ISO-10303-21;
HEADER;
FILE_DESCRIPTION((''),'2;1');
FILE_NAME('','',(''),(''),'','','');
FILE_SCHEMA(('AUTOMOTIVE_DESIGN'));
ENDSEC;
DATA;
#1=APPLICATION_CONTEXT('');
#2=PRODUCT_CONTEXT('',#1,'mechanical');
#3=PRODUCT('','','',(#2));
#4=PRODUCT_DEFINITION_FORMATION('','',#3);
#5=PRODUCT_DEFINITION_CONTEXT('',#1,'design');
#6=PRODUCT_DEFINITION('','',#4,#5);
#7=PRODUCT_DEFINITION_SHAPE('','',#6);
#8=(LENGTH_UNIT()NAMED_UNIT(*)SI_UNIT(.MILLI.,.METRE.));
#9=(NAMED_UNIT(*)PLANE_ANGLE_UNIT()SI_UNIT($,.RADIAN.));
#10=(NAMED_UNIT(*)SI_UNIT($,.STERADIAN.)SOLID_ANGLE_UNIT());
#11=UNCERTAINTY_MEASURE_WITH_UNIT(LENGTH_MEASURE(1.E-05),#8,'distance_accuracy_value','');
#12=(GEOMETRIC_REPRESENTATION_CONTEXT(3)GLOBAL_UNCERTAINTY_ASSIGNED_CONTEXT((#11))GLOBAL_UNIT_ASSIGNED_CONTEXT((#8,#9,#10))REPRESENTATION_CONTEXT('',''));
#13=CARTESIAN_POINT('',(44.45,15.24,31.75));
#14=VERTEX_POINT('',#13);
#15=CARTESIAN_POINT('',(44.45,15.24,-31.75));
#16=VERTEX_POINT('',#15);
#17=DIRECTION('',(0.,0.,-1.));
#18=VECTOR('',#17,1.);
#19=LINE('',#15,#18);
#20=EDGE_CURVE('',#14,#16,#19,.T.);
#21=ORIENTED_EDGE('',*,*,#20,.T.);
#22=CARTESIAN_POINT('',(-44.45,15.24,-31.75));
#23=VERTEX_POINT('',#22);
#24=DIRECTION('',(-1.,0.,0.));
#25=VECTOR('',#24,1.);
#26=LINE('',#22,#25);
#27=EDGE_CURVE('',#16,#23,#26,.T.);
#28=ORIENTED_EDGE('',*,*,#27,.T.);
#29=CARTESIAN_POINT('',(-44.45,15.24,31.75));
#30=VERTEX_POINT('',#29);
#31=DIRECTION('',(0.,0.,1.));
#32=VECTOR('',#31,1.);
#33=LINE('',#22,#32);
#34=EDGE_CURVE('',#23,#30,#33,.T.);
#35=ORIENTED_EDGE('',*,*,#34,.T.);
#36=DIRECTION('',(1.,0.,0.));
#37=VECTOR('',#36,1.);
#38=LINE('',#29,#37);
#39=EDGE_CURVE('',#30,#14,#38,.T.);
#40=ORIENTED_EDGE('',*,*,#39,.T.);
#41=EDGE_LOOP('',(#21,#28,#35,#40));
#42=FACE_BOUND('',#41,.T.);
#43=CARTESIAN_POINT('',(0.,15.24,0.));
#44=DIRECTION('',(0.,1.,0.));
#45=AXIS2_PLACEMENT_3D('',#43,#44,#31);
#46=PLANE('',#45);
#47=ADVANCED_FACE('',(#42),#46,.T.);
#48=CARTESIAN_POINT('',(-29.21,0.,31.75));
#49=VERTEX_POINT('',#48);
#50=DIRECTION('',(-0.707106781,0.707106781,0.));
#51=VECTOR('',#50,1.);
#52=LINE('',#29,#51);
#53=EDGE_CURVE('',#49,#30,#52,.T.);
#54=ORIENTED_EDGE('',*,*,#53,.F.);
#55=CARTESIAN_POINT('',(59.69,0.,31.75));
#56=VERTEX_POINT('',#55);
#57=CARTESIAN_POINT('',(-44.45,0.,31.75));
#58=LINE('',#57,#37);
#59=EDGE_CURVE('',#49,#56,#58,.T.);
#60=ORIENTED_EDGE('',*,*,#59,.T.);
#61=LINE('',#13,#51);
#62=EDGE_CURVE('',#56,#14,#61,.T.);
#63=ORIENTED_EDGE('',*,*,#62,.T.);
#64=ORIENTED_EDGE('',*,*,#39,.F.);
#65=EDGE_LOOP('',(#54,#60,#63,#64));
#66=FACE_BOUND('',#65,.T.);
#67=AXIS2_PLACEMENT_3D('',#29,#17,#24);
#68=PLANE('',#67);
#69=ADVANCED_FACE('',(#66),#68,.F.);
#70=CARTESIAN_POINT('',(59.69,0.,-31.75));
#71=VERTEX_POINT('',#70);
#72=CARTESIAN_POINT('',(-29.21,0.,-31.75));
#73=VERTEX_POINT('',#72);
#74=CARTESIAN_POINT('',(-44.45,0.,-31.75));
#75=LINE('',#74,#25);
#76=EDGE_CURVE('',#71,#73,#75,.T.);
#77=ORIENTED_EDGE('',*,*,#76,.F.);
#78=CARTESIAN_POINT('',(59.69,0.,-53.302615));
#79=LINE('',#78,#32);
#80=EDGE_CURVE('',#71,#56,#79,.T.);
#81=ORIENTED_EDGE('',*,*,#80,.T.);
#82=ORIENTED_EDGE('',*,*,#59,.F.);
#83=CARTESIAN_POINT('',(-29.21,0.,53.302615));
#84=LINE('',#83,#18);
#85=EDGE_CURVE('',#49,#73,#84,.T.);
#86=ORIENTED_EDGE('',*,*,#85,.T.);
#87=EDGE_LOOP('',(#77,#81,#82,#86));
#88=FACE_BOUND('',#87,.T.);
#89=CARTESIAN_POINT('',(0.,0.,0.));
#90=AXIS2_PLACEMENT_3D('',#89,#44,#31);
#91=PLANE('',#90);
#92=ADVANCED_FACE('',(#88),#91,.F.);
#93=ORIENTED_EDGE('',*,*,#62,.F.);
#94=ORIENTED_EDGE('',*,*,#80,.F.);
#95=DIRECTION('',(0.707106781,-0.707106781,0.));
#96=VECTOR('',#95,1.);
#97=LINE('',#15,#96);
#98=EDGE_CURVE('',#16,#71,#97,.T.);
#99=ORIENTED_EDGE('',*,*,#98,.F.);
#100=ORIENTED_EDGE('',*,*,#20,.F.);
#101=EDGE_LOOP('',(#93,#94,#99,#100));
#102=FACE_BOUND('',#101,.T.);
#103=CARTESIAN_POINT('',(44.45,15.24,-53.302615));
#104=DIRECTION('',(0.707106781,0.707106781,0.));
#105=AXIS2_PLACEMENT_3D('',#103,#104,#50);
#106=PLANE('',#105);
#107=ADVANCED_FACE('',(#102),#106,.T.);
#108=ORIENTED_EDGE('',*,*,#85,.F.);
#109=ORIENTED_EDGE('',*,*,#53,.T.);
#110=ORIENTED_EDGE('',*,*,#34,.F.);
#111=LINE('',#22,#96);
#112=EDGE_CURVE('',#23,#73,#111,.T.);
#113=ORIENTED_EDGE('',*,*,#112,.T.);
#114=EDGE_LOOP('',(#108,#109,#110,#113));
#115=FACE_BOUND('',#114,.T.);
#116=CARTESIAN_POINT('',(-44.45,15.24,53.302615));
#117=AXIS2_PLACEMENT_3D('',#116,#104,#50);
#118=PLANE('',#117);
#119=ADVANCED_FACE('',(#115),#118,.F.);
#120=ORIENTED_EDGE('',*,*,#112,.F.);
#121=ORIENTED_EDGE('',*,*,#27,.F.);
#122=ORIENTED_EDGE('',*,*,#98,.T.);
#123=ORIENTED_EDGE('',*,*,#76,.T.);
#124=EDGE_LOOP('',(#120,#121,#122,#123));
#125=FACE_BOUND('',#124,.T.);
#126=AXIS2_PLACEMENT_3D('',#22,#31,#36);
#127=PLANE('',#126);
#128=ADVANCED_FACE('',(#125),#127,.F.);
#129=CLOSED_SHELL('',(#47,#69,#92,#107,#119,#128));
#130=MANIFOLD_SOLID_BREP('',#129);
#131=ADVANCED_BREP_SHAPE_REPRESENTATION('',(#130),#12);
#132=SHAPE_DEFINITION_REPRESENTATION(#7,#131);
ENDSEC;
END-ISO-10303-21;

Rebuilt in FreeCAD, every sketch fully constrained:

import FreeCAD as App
import Part
import Sketcher

V = App.Vector
Q = App.Units.Quantity

doc = App.newDocument("Part")
body = doc.addObject("PartDesign::Body", "Body")

sketch1 = body.newObject("Sketcher::SketchObject", "Sketch")
sketch1.AttachmentSupport = (doc.getObject("XZ_Plane"), [""])
sketch1.MapMode = "FlatFace"
sketch1.addGeometry([
    Part.LineSegment(V(-44.45, -31.75, 0), V(-44.45, 31.75, 0)),
    Part.LineSegment(V(-44.45, 31.75, 0), V(44.45, 31.75, 0)),
    Part.LineSegment(V(44.45, 31.75, 0), V(44.45, -31.75, 0)),
    Part.LineSegment(V(44.45, -31.75, 0), V(-44.45, -31.75, 0)),
], False)
sketch1.addConstraint([
    Sketcher.Constraint("Coincident", 0, 2, 1, 1),
    Sketcher.Constraint("Coincident", 1, 2, 2, 1),
    Sketcher.Constraint("Coincident", 2, 2, 3, 1),
    Sketcher.Constraint("Coincident", 3, 2, 0, 1),
    Sketcher.Constraint("Vertical", 0),
    Sketcher.Constraint("Horizontal", 1),
    Sketcher.Constraint("Vertical", 2),
    Sketcher.Constraint("Horizontal", 3),
    Sketcher.Constraint("Symmetric", 0, 2, 2, 2, -1, 1),
    Sketcher.Constraint("DistanceX", 1, 1, 1, 2, Q("3.5 in")),
    Sketcher.Constraint("DistanceY", 0, 1, 0, 2, Q("2.5 in")),
])
pad1 = body.newObject("PartDesign::Pad", "Pad")
pad1.Profile = sketch1
pad1.Length = Q("0.6 in")
pad1.Reversed = True

sketch2 = body.newObject("Sketcher::SketchObject", "Sketch001")
sketch2.AttachmentSupport = (doc.getObject("XY_Plane"), [""])
sketch2.MapMode = "FlatFace"
sketch2.AttachmentOffset = App.Placement(V(0, 0, 1.25 * 25.4), App.Rotation())
sketch2.addGeometry([
    Part.LineSegment(V(59.69, 0, 0), V(44.45, 15.24, 0)),
    Part.LineSegment(V(44.45, 15.24, 0), V(44.45, 0, 0)),
    Part.LineSegment(V(44.45, 0, 0), V(59.69, 0, 0)),
], False)
sketch2.addConstraint([
    Sketcher.Constraint("Coincident", 0, 2, 1, 1),
    Sketcher.Constraint("Coincident", 1, 2, 2, 1),
    Sketcher.Constraint("Coincident", 2, 2, 0, 1),
    Sketcher.Constraint("Vertical", 1),
    Sketcher.Constraint("Horizontal", 2),
    Sketcher.Constraint("PointOnObject", 1, 2, -1),
    Sketcher.Constraint("Equal", 2, 1),
    Sketcher.Constraint("DistanceX", 2, 1, 2, 2, Q("0.6 in")),
    Sketcher.Constraint("DistanceX", -1, 1, 0, 2, Q("1.75 in")),
])
pad2 = body.newObject("PartDesign::Pad", "Pad001")
pad2.Profile = sketch2
pad2.Length = Q("2.5 in")
pad2.Reversed = True

sketch3 = body.newObject("Sketcher::SketchObject", "Sketch002")
sketch3.AttachmentSupport = (doc.getObject("XY_Plane"), [""])
sketch3.MapMode = "FlatFace"
sketch3.AttachmentOffset = App.Placement(V(0, 0, -1.25 * 25.4), App.Rotation())
sketch3.addGeometry([
    Part.LineSegment(V(-44.45, 15.24, 0), V(-29.21, 0, 0)),
    Part.LineSegment(V(-29.21, 0, 0), V(-44.45, 0, 0)),
    Part.LineSegment(V(-44.45, 0, 0), V(-44.45, 15.24, 0)),
], False)
sketch3.addConstraint([
    Sketcher.Constraint("Coincident", 0, 2, 1, 1),
    Sketcher.Constraint("Coincident", 1, 2, 2, 1),
    Sketcher.Constraint("Coincident", 2, 2, 0, 1),
    Sketcher.Constraint("Horizontal", 1),
    Sketcher.Constraint("Vertical", 2),
    Sketcher.Constraint("PointOnObject", 0, 2, -1),
    Sketcher.Constraint("Equal", 1, 2),
    Sketcher.Constraint("DistanceX", 1, 2, 1, 1, Q("0.6 in")),
    Sketcher.Constraint("DistanceX", 0, 2, -1, 1, Q("1.15 in")),
])
pocket1 = body.newObject("PartDesign::Pocket", "Pocket")
pocket1.Profile = sketch3
pocket1.Length = Q("2.5 in")
pocket1.Reversed = True

doc.recompute()
